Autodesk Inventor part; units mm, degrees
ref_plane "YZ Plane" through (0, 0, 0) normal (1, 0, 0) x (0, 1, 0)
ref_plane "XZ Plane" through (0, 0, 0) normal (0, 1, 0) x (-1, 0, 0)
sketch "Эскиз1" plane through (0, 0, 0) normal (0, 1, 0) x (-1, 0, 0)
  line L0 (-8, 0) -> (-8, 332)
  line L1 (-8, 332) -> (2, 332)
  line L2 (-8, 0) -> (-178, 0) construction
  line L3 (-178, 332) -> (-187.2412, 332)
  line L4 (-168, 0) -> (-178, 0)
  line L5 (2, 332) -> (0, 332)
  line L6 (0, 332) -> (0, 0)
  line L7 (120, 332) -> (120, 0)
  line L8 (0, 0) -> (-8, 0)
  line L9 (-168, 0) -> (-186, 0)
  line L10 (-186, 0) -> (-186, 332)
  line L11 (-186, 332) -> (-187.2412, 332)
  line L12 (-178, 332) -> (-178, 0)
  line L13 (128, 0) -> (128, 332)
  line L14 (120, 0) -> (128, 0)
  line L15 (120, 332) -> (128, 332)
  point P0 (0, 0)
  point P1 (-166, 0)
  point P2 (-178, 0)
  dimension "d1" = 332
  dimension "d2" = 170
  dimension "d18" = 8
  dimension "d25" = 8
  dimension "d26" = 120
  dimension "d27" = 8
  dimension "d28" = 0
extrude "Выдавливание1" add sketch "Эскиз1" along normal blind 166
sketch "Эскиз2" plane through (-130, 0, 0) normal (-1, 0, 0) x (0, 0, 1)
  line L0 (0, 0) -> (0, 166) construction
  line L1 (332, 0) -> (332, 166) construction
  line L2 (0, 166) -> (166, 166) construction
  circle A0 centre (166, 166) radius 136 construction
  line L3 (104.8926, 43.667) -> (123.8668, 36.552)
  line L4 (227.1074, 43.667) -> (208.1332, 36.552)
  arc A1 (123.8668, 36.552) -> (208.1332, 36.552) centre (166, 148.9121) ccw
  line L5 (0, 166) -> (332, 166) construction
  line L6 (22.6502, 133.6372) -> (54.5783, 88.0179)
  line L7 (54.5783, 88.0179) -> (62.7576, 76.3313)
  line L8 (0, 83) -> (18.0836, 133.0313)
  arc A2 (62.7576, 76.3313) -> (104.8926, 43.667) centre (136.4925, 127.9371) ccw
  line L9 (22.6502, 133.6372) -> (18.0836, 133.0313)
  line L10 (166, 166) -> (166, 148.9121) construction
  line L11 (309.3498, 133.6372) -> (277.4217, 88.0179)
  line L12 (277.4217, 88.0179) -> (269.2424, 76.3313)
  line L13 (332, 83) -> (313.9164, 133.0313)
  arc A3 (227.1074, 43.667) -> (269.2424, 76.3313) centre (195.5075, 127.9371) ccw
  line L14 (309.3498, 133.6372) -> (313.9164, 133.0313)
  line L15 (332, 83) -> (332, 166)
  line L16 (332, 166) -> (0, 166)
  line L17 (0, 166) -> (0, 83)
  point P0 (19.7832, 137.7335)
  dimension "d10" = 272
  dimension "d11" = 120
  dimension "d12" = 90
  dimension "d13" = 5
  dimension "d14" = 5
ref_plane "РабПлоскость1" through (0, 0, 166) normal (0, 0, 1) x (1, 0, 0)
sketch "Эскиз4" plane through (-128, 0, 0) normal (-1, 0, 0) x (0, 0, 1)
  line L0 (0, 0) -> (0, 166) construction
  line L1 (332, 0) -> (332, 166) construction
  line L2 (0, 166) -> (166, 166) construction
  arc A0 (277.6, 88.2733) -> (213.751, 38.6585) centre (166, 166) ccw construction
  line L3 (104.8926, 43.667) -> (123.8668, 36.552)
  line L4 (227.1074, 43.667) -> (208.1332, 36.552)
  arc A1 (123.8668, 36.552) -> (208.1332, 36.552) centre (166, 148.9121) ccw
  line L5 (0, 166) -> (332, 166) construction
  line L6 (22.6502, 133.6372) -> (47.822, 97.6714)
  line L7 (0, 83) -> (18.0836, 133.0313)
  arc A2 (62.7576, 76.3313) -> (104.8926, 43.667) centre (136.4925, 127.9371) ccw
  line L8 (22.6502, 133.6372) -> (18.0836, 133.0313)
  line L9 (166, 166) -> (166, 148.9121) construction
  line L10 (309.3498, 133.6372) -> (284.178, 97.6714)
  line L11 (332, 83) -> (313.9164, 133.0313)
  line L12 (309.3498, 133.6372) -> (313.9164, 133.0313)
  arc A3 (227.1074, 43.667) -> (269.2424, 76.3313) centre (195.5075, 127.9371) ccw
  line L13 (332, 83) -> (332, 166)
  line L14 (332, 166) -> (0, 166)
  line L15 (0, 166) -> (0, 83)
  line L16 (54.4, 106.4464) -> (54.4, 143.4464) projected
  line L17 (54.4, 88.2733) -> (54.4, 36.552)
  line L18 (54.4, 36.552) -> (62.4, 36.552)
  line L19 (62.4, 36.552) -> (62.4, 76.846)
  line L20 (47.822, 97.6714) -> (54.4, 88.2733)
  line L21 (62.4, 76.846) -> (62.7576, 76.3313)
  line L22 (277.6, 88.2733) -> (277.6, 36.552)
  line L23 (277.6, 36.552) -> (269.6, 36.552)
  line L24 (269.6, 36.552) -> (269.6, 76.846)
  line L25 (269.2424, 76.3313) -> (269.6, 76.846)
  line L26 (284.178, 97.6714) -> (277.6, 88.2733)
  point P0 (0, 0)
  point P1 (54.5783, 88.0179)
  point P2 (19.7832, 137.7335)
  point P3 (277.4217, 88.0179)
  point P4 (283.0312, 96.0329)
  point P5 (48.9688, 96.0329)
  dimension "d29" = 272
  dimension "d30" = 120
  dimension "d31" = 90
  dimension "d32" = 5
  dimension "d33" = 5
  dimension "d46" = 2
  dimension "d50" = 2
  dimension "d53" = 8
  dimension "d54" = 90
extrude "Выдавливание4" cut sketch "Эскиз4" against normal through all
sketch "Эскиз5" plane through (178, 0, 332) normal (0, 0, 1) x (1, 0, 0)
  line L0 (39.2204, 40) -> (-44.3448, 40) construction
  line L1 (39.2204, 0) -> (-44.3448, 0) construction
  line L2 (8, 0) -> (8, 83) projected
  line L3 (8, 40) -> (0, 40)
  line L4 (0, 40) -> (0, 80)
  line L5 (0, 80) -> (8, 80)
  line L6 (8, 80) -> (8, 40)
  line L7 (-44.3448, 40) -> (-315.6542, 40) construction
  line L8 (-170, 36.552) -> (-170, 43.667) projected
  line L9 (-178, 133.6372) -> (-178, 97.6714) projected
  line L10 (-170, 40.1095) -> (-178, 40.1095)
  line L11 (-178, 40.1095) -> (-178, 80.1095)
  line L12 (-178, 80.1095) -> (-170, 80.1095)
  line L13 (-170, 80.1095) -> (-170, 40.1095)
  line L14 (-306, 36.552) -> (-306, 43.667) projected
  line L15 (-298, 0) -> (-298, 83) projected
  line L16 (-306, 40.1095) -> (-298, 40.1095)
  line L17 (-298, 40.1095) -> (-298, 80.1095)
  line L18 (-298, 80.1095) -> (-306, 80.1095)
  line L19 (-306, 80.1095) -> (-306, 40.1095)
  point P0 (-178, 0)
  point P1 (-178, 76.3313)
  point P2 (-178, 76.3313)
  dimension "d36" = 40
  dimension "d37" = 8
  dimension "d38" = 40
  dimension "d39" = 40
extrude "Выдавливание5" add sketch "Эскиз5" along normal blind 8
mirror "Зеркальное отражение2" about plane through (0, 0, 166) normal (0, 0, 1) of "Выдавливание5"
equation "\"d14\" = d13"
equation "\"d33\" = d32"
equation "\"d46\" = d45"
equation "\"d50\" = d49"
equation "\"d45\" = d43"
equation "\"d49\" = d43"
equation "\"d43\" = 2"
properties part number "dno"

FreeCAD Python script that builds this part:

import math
import FreeCAD as App
import Part
import Sketcher
from FreeCAD import Vector
Q = App.Units.Quantity


def add_polygon(sketch, points):
    """Adds a closed chain of lines whose ends are joined by coincident constraints."""
    first, n = sketch.GeometryCount, len(points)
    for a, b in zip(points, points[1:] + points[:1]):
        sketch.addGeometry(Part.LineSegment(App.Vector(*a, 0), App.Vector(*b, 0)), False)
    for i in range(n):
        sketch.addConstraint(Sketcher.Constraint("Coincident", first + i, 2, first + (i + 1) % n, 1))

doc = App.newDocument("Part")
body = doc.addObject("PartDesign::Body", "Body")
body.AllowCompound = True

# Sketch on XZ plane
sketch1 = body.newObject("Sketcher::SketchObject", "Sketch")
sketch1.AttachmentSupport = (doc.getObject("XZ_Plane"), [""])
sketch1.MapMode = "FlatFace"
add_polygon(sketch1, [(8, 332), (8, 0), (0, 0), (0, 332)])  # lines 0-3
add_polygon(sketch1, [(178, 0), (178, 332), (186, 332), (186, 0)])  # lines 4-7
add_polygon(sketch1, [(-128, 332), (-120, 332), (-120, 0), (-128, 0)])  # lines 8-11
sketch1.addConstraint([
    Sketcher.Constraint("Vertical", 0),
    Sketcher.Constraint("Horizontal", 1),
    Sketcher.Constraint("Vertical", 2),
    Sketcher.Constraint("Horizontal", 3),
    Sketcher.Constraint("Vertical", 4),
    Sketcher.Constraint("Horizontal", 5),
    Sketcher.Constraint("Vertical", 6),
    Sketcher.Constraint("Horizontal", 7),
    Sketcher.Constraint("Horizontal", 8),
    Sketcher.Constraint("Vertical", 9),
    Sketcher.Constraint("Horizontal", 10),
    Sketcher.Constraint("Vertical", 11),
    Sketcher.Constraint("Coincident", 1, 2, -1, 1),
    Sketcher.Constraint("PointOnObject", 6, 2, -1),
    Sketcher.Constraint("PointOnObject", 9, 2, -1),
    Sketcher.Constraint("Horizontal", 3, 2, 4, 2),
    Sketcher.Constraint("Horizontal", 5, 2, 8, 2),
    Sketcher.Constraint("Equal", 3, 5),
    Sketcher.Constraint("Equal", 7, 8),
    Sketcher.Constraint("DistanceX", 1, 2, 1, 1, Q("8 mm")),
    Sketcher.Constraint("DistanceY", 0, 2, 0, 1, Q("332 mm")),
    Sketcher.Constraint("DistanceX", 8, 2, -1, 1, Q("120 mm")),
    Sketcher.Constraint("DistanceX", 3, 2, 4, 2, Q("170 mm")),
])
pad1 = body.newObject("PartDesign::Pad", "Pad")
pad1.Profile = sketch1
pad1.Length = 166
pad1.Reversed = True

# Sketch on YZ plane
sketch2 = body.newObject("Sketcher::SketchObject", "Sketch001")
sketch2.AttachmentSupport = (doc.getObject("YZ_Plane"), [""])
sketch2.MapMode = "FlatFace"
sketch2.AttachmentOffset = App.Placement(Vector(0, 0, -128), App.Rotation())
sketch2.addGeometry([
    Part.ArcOfCircle(Part.Circle(Vector(127.9371, 136.4925, 0), Vector(0, 0, 1), 89.999967), math.radians(-159.444782), math.radians(-124.987519)),  # 0
    Part.LineSegment(Vector(43.667, 104.8926, 0), Vector(36.552, 123.8668, 0)),  # 1
    Part.ArcOfCircle(Part.Circle(Vector(148.9121, 166, 0), Vector(0, 0, 1), 119.999994), math.radians(159.444776), math.radians(200.555224)),  # 2
    Part.LineSegment(Vector(36.552, 208.1332, 0), Vector(43.667, 227.1074, 0)),  # 3
    Part.ArcOfCircle(Part.Circle(Vector(127.9371, 195.5075, 0), Vector(0, 0, 1), 90.000019), math.radians(124.987519), math.radians(159.444782)),  # 4
    Part.LineSegment(Vector(76.3313, 269.2424, 0), Vector(76.846, 269.6, 0)),  # 5
    Part.LineSegment(Vector(76.846, 269.6, 0), Vector(36.552, 269.6, 0)),  # 6
    Part.LineSegment(Vector(36.552, 269.6, 0), Vector(36.552, 277.6, 0)),  # 7
    Part.LineSegment(Vector(36.552, 277.6, 0), Vector(88.2733, 277.6, 0)),  # 8
    Part.LineSegment(Vector(88.2733, 277.6, 0), Vector(97.6714, 284.178, 0)),  # 9
    Part.LineSegment(Vector(97.6714, 284.178, 0), Vector(133.6372, 309.3498, 0)),  # 10
    Part.LineSegment(Vector(133.6372, 309.3498, 0), Vector(133.0313, 313.9164, 0)),  # 11
    Part.LineSegment(Vector(133.0313, 313.9164, 0), Vector(83, 332, 0)),  # 12
    Part.LineSegment(Vector(83, 332, 0), Vector(166, 332, 0)),  # 13
    Part.LineSegment(Vector(166, 332, 0), Vector(166, 0, 0)),  # 14
    Part.LineSegment(Vector(166, 0, 0), Vector(83, 0, 0)),  # 15
    Part.LineSegment(Vector(83, 0, 0), Vector(133.0313, 18.0836, 0)),  # 16
    Part.LineSegment(Vector(133.0313, 18.0836, 0), Vector(133.6372, 22.6502, 0)),  # 17
    Part.LineSegment(Vector(133.6372, 22.6502, 0), Vector(97.6714, 47.822, 0)),  # 18
    Part.LineSegment(Vector(97.6714, 47.822, 0), Vector(88.2733, 54.4, 0)),  # 19
    Part.LineSegment(Vector(88.2733, 54.4, 0), Vector(36.552, 54.4, 0)),  # 20
    Part.LineSegment(Vector(36.552, 54.4, 0), Vector(36.552, 62.4, 0)),  # 21
    Part.LineSegment(Vector(36.552, 62.4, 0), Vector(76.846, 62.4, 0)),  # 22
    Part.LineSegment(Vector(76.846, 62.4, 0), Vector(76.3313, 62.7576, 0)),  # 23
], False)
sketch2.addConstraint([
    Sketcher.Constraint("Tangent", 0, 1, 1, 1),
    Sketcher.Constraint("Tangent", 1, 2, 2, 2),
    Sketcher.Constraint("Tangent", 2, 1, 3, 1),
    Sketcher.Constraint("Tangent", 3, 2, 4, 2),
    Sketcher.Constraint("Coincident", 4, 1, 5, 1),
    Sketcher.Constraint("Coincident", 5, 2, 6, 1),
    Sketcher.Constraint("Coincident", 6, 2, 7, 1),
    Sketcher.Constraint("Coincident", 7, 2, 8, 1),
    Sketcher.Constraint("Coincident", 8, 2, 9, 1),
    Sketcher.Constraint("Coincident", 9, 2, 10, 1),
    Sketcher.Constraint("Coincident", 10, 2, 11, 1),
    Sketcher.Constraint("Coincident", 11, 2, 12, 1),
    Sketcher.Constraint("Coincident", 12, 2, 13, 1),
    Sketcher.Constraint("Coincident", 13, 2, 14, 1),
    Sketcher.Constraint("Coincident", 14, 2, 15, 1),
    Sketcher.Constraint("Coincident", 15, 2, 16, 1),
    Sketcher.Constraint("Coincident", 16, 2, 17, 1),
    Sketcher.Constraint("Coincident", 17, 2, 18, 1),
    Sketcher.Constraint("Coincident", 18, 2, 19, 1),
    Sketcher.Constraint("Coincident", 19, 2, 20, 1),
    Sketcher.Constraint("Coincident", 20, 2, 21, 1),
    Sketcher.Constraint("Coincident", 21, 2, 22, 1),
    Sketcher.Constraint("Coincident", 22, 2, 23, 1),
    Sketcher.Constraint("Coincident", 23, 2, 0, 2),
    Sketcher.Constraint("Horizontal", 6),
    Sketcher.Constraint("Vertical", 7),
    Sketcher.Constraint("Horizontal", 8),
    Sketcher.Constraint("Horizontal", 13),
    Sketcher.Constraint("Vertical", 14),
    Sketcher.Constraint("Horizontal", 15),
    Sketcher.Constraint("Horizontal", 20),
    Sketcher.Constraint("Vertical", 21),
    Sketcher.Constraint("Horizontal", 22),
    Sketcher.Constraint("Equal", 0, 4),
    Sketcher.Constraint("PointOnObject", 14, 2, -1),
    Sketcher.Constraint("Parallel", 9, 10),
    Sketcher.Constraint("Parallel", 18, 19),
    Sketcher.Constraint("Vertical", 0, 3, 4, 3),
    Sketcher.Constraint("Vertical", 1, 2, 2, 1),
    Sketcher.Constraint("Vertical", 2, 1, 6, 2),
    Sketcher.Constraint("Vertical", 12, 2, 15, 2),
    Sketcher.Constraint("Vertical", 11, 2, 16, 2),
    Sketcher.Constraint("Vertical", 10, 2, 17, 2),
    Sketcher.Constraint("Vertical", 9, 2, 18, 2),
    Sketcher.Constraint("Vertical", 8, 2, 19, 2),
    Sketcher.Constraint("Vertical", 7, 2, 20, 2),
    Sketcher.Constraint("Vertical", 5, 2, 22, 2),
    Sketcher.Constraint("Vertical", 4, 1, 23, 2),
    Sketcher.Constraint("Equal", 7, 21),
    Sketcher.Constraint("Equal", 12, 16),
    Sketcher.Constraint("Equal", 11, 17),
    Sketcher.Constraint("Equal", 10, 18),
    Sketcher.Constraint("Equal", 5, 23),
    Sketcher.Constraint("Radius", 0, Q("90 mm")),
    Sketcher.Constraint("Radius", 2, Q("120 mm")),
    Sketcher.Constraint("DistanceY", 7, 1, 7, 2, Q("8 mm")),
    Sketcher.Constraint("DistanceX", 13, 1, 13, 2, Q("83 mm")),
    Sketcher.Constraint("DistanceY", 14, 2, 14, 1, Q("332 mm")),
    Sketcher.Constraint("DistanceX", -1, 1, 12, 2, Q("83 mm")),
    Sketcher.Constraint("DistanceY", -1, 1, 5, 2, Q("269.6 mm")),
    Sketcher.Constraint("Angle", 5, Q("34.7906 deg")),
    Sketcher.Constraint("Angle", 9, Q("34.9893 deg")),
    Sketcher.Constraint("DistanceY", 0, 1, 0, 3, Q("31.6 mm")),
    Sketcher.Constraint("DistanceX", 4, 1, 11, 2, Q("56.7 mm")),
    Sketcher.Constraint("DistanceX", 0, 3, 17, 2, Q("5.7 mm")),
    Sketcher.Constraint("DistanceX", 6, 2, 6, 1, Q("40.294 mm")),
    Sketcher.Constraint("DistanceY", 0, 3, 4, 1, Q("132.75 mm")),
    Sketcher.Constraint("DistanceX", 9, 2, 11, 2, Q("35.36 mm")),
    Sketcher.Constraint("DistanceX", 8, 1, 8, 2, Q("51.7213 mm")),
    Sketcher.Constraint("DistanceX", -1, 1, 0, 3, Q("127.937 mm")),
    Sketcher.Constraint("DistanceY", 4, 1, 11, 2, Q("44.674 mm")),
])
pocket1 = body.newObject("PartDesign::Pocket", "Pocket")
pocket1.Profile = sketch2
pocket1.Type = "ThroughAll"
pocket1.Reversed = True

# Sketch on XY plane
sketch3 = body.newObject("Sketcher::SketchObject", "Sketch002")
sketch3.AttachmentSupport = (doc.getObject("XY_Plane"), [""])
sketch3.MapMode = "FlatFace"
sketch3.AttachmentOffset = App.Placement(Vector(0, 0, 332), App.Rotation())
add_polygon(sketch3, [(178, 40), (186, 40), (186, 80), (178, 80)])  # lines 0-3
add_polygon(sketch3, [(0, 40.1095), (8, 40.1095), (8, 80.1095), (0, 80.1095)])  # lines 4-7
add_polygon(sketch3, [(-128, 80.1095), (-128, 40.1095), (-120, 40.1095), (-120, 80.1095)])  # lines 8-11
sketch3.addConstraint([
    Sketcher.Constraint("Horizontal", 0),
    Sketcher.Constraint("Vertical", 1),
    Sketcher.Constraint("Horizontal", 2),
    Sketcher.Constraint("Vertical", 3),
    Sketcher.Constraint("Horizontal", 4),
    Sketcher.Constraint("Vertical", 5),
    Sketcher.Constraint("Horizontal", 6),
    Sketcher.Constraint("Vertical", 7),
    Sketcher.Constraint("Vertical", 8),
    Sketcher.Constraint("Horizontal", 9),
    Sketcher.Constraint("Vertical", 10),
    Sketcher.Constraint("Horizontal", 11),
    Sketcher.Constraint("PointOnObject", 6, 2, -2),
    Sketcher.Constraint("Horizontal", 7, 2, 8, 2),
    Sketcher.Constraint("Horizontal", 6, 2, 10, 2),
    Sketcher.Constraint("Equal", 2, 4),
    Sketcher.Constraint("Equal", 6, 9),
    Sketcher.Constraint("Equal", 3, 5),
    Sketcher.Constraint("DistanceX", 0, 1, 0, 2, Q("8 mm")),
    Sketcher.Constraint("DistanceY", 1, 1, 1, 2, Q("40 mm")),
    Sketcher.Constraint("DistanceY", -1, 1, 0, 2, Q("40 mm")),
    Sketcher.Constraint("DistanceX", -1, 1, 0, 2, Q("186 mm")),
    Sketcher.Constraint("DistanceX", 8, 2, -1, 1, Q("128 mm")),
    Sketcher.Constraint("DistanceY", -1, 1, 4, 2, Q("40.1095 mm")),
])
pad2 = body.newObject("PartDesign::Pad", "Pad001")
pad2.Profile = sketch3
pad2.Length = 8
doc.recompute()

datumplane = body.newObject("PartDesign::Plane", "DatumPlane")
datumplane.AttachmentSupport = (doc.getObject("XY_Plane"), [""])
datumplane.MapMode = "FlatFace"
datumplane.AttachmentOffset = App.Placement(Vector(0, 0, 166), App.Rotation())
mirrored = body.newObject("PartDesign::Mirrored", "Mirrored")
mirrored.Originals = [pad2]
mirrored.MirrorPlane = (datumplane, [""])
body.Tip = mirrored

doc.recompute()
